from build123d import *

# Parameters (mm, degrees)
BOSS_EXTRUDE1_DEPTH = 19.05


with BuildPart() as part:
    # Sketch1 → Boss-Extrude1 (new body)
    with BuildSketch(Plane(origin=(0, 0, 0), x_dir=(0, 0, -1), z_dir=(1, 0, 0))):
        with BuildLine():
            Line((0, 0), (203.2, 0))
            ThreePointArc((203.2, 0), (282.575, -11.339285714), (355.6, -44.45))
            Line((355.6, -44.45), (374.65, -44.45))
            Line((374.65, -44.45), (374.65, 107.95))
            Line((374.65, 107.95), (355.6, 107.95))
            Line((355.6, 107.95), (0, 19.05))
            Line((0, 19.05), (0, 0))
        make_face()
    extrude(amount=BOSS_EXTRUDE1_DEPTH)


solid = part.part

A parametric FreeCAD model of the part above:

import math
import FreeCAD as App
import Part
import Sketcher
Q = App.Units.Quantity

doc = App.newDocument("Part")
body = doc.addObject("PartDesign::Body", "Body")

sketch1 = body.newObject("Sketcher::SketchObject", "Sketch")
sketch1.AttachmentSupport = (doc.getObject("YZ_Plane"), [""])
sketch1.MapMode = "FlatFace"
sketch1.addGeometry(Part.LineSegment(App.Vector(0, 0, 0), App.Vector(0, -203, 0)), False)
sketch1.addGeometry(Part.ArcOfCircle(Part.Circle(App.Vector(-283, -203, 0), App.Vector(0, 0, 1), 283), math.radians(-33), math.radians(0)), False)
sketch1.addGeometry(Part.LineSegment(App.Vector(-44, -356, 0), App.Vector(-44, -375, 0)), False)
sketch1.addGeometry(Part.LineSegment(App.Vector(-44, -375, 0), App.Vector(108, -375, 0)), False)
sketch1.addGeometry(Part.LineSegment(App.Vector(108, -375, 0), App.Vector(108, -356, 0)), False)
sketch1.addGeometry(Part.LineSegment(App.Vector(108, -356, 0), App.Vector(19, 0, 0)), False)
sketch1.addGeometry(Part.LineSegment(App.Vector(19, 0, 0), App.Vector(0, 0, 0)), False)
sketch1.addConstraint(Sketcher.Constraint("Tangent", 0, 2, 1, 2))
sketch1.addConstraint(Sketcher.Constraint("Coincident", 1, 1, 2, 1))
sketch1.addConstraint(Sketcher.Constraint("Coincident", 2, 2, 3, 1))
sketch1.addConstraint(Sketcher.Constraint("Coincident", 3, 2, 4, 1))
sketch1.addConstraint(Sketcher.Constraint("Coincident", 4, 2, 5, 1))
sketch1.addConstraint(Sketcher.Constraint("Coincident", 5, 2, 6, 1))
sketch1.addConstraint(Sketcher.Constraint("Coincident", 6, 2, 0, 1))
sketch1.addConstraint(Sketcher.Constraint("Vertical", 0))
sketch1.addConstraint(Sketcher.Constraint("Vertical", 2))
sketch1.addConstraint(Sketcher.Constraint("Horizontal", 3))
sketch1.addConstraint(Sketcher.Constraint("Vertical", 4))
sketch1.addConstraint(Sketcher.Constraint("Horizontal", 6))
sketch1.addConstraint(Sketcher.Constraint("Coincident", 6, 2, -1, 1))
sketch1.addConstraint(Sketcher.Constraint("Horizontal", 1, 1, 4, 2))
sketch1.addConstraint(Sketcher.Constraint("Equal", 6, 2))
sketch1.addConstraint(Sketcher.Constraint("DistanceX", 3, 1, 3, 2, Q("6 in")))
sketch1.addConstraint(Sketcher.Constraint("DistanceY", 0, 2, 0, 1, Q("8 in")))
sketch1.addConstraint(Sketcher.Constraint("DistanceY", 4, 2, -1, 1, Q("14 in")))
sketch1.addConstraint(Sketcher.Constraint("DistanceX", 6, 2, 6, 1, Q("0.75 in")))
sketch1.addConstraint(Sketcher.Constraint("DistanceX", 5, 2, 4, 2, Q("3.5 in")))
pad1 = body.newObject("PartDesign::Pad", "Pad")
pad1.Profile = sketch1
pad1.Length = Q("0.75 in")

doc.recompute()
